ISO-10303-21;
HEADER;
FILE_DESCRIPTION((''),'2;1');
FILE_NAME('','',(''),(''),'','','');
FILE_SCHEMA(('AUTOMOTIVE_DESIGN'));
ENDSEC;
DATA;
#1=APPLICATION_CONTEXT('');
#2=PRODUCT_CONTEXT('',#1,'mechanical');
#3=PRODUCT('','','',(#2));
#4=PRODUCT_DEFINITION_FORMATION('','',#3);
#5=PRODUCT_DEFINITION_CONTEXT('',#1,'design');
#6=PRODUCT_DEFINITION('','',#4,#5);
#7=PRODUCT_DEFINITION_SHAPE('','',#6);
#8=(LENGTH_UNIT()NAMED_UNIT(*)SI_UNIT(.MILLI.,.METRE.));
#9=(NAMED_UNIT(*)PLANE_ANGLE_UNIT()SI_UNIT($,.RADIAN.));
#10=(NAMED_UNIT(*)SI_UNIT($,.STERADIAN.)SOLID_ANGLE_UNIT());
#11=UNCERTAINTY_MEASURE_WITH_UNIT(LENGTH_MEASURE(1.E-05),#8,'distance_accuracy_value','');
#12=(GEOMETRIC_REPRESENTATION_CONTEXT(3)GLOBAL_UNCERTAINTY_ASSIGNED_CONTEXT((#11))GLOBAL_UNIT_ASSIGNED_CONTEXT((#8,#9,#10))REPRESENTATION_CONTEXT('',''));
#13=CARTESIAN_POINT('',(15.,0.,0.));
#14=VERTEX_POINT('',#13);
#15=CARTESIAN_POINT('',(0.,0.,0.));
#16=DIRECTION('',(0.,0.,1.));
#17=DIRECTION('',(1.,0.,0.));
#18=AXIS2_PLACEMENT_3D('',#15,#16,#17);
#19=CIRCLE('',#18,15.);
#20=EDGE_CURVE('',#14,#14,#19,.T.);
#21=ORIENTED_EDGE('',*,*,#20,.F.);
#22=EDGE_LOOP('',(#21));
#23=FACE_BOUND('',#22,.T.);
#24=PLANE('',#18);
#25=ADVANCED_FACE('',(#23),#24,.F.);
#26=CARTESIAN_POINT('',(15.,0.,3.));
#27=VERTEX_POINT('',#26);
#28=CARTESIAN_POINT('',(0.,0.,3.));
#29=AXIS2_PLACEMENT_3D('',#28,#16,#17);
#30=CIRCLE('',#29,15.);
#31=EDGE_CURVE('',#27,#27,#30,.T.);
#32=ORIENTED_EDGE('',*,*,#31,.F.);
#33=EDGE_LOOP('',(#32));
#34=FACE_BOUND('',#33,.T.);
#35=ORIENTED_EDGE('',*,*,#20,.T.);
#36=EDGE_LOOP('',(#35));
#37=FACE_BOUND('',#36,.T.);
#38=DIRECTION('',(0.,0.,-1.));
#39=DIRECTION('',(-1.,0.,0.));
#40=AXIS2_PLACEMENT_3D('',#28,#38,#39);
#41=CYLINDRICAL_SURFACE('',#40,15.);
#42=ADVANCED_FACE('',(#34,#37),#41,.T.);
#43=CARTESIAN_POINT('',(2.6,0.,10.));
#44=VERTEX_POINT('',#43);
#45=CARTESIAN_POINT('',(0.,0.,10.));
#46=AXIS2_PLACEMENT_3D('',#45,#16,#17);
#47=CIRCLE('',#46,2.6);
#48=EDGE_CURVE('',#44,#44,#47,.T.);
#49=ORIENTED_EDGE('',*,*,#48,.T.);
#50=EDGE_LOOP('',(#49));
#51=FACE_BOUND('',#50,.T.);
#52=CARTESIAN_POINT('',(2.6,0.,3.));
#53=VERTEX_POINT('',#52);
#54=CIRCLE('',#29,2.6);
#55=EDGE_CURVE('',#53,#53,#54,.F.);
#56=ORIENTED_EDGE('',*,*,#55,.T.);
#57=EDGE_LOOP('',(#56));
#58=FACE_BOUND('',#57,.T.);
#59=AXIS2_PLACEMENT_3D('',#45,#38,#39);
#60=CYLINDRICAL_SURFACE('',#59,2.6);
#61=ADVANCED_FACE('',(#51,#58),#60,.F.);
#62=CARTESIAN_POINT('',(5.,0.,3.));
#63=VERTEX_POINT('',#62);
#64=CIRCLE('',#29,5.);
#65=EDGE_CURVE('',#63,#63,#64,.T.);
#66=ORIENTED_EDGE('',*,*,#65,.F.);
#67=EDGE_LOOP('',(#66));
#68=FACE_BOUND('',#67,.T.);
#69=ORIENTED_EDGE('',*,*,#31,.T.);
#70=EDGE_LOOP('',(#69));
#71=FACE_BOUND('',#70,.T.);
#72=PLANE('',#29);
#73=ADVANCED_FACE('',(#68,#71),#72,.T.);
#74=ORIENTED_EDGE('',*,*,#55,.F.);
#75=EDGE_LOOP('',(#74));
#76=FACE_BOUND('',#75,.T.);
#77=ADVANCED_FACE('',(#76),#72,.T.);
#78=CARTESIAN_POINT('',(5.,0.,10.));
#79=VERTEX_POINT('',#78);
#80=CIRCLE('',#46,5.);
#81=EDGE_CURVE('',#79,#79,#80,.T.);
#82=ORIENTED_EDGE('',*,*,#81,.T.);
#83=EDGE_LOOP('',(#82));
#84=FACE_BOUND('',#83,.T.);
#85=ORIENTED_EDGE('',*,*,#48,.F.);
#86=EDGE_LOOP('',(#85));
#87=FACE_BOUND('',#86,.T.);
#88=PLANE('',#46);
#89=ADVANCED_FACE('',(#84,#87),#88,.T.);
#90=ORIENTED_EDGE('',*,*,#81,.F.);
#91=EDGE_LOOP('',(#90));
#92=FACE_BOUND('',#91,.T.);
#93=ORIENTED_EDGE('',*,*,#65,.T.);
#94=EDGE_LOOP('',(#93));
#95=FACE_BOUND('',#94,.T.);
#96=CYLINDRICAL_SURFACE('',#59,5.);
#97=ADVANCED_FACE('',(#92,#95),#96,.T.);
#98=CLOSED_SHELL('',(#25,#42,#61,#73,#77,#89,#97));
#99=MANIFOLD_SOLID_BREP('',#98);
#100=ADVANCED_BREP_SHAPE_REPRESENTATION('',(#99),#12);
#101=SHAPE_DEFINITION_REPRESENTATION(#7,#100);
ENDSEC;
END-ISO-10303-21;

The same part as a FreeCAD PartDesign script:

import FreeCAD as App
import Part
import Sketcher
from FreeCAD import Vector

doc = App.newDocument("Part")
body = doc.addObject("PartDesign::Body", "Body")

sketch1 = body.newObject("Sketcher::SketchObject", "Sketch")
sketch1.AttachmentSupport = (doc.getObject("XY_Plane"), [""])
sketch1.MapMode = "FlatFace"
sketch1.addGeometry(Part.Circle(Vector(0, 0, 0), Vector(0, 0, 1), 15), False)
sketch1.addConstraint(Sketcher.Constraint("Coincident", 0, 3, -1, 1))
sketch1.addConstraint(Sketcher.Constraint("Diameter", 0, 30.0))
pad1 = body.newObject("PartDesign::Pad", "Pad")
pad1.Profile = sketch1
pad1.Length = 3

sketch2 = body.newObject("Sketcher::SketchObject", "Sketch001")
sketch2.AttachmentSupport = (doc.getObject("XY_Plane"), [""])
sketch2.MapMode = "FlatFace"
sketch2.AttachmentOffset = App.Placement(Vector(0, 0, 3), App.Rotation())
sketch2.addGeometry(Part.Circle(Vector(0, 0, 0), Vector(0, 0, 1), 5), False)
sketch2.addGeometry(Part.Circle(Vector(0, 0, 0), Vector(0, 0, 1), 2.6), False)
sketch2.addConstraint(Sketcher.Constraint("Coincident", 0, 3, -1, 1))
sketch2.addConstraint(Sketcher.Constraint("Coincident", 1, 3, -1, 1))
sketch2.addConstraint(Sketcher.Constraint("Diameter", 0, 10.0))
sketch2.addConstraint(Sketcher.Constraint("Diameter", 1, 5.2))
pad2 = body.newObject("PartDesign::Pad", "Pad001")
pad2.Profile = sketch2
pad2.Length = 7

doc.recompute()
